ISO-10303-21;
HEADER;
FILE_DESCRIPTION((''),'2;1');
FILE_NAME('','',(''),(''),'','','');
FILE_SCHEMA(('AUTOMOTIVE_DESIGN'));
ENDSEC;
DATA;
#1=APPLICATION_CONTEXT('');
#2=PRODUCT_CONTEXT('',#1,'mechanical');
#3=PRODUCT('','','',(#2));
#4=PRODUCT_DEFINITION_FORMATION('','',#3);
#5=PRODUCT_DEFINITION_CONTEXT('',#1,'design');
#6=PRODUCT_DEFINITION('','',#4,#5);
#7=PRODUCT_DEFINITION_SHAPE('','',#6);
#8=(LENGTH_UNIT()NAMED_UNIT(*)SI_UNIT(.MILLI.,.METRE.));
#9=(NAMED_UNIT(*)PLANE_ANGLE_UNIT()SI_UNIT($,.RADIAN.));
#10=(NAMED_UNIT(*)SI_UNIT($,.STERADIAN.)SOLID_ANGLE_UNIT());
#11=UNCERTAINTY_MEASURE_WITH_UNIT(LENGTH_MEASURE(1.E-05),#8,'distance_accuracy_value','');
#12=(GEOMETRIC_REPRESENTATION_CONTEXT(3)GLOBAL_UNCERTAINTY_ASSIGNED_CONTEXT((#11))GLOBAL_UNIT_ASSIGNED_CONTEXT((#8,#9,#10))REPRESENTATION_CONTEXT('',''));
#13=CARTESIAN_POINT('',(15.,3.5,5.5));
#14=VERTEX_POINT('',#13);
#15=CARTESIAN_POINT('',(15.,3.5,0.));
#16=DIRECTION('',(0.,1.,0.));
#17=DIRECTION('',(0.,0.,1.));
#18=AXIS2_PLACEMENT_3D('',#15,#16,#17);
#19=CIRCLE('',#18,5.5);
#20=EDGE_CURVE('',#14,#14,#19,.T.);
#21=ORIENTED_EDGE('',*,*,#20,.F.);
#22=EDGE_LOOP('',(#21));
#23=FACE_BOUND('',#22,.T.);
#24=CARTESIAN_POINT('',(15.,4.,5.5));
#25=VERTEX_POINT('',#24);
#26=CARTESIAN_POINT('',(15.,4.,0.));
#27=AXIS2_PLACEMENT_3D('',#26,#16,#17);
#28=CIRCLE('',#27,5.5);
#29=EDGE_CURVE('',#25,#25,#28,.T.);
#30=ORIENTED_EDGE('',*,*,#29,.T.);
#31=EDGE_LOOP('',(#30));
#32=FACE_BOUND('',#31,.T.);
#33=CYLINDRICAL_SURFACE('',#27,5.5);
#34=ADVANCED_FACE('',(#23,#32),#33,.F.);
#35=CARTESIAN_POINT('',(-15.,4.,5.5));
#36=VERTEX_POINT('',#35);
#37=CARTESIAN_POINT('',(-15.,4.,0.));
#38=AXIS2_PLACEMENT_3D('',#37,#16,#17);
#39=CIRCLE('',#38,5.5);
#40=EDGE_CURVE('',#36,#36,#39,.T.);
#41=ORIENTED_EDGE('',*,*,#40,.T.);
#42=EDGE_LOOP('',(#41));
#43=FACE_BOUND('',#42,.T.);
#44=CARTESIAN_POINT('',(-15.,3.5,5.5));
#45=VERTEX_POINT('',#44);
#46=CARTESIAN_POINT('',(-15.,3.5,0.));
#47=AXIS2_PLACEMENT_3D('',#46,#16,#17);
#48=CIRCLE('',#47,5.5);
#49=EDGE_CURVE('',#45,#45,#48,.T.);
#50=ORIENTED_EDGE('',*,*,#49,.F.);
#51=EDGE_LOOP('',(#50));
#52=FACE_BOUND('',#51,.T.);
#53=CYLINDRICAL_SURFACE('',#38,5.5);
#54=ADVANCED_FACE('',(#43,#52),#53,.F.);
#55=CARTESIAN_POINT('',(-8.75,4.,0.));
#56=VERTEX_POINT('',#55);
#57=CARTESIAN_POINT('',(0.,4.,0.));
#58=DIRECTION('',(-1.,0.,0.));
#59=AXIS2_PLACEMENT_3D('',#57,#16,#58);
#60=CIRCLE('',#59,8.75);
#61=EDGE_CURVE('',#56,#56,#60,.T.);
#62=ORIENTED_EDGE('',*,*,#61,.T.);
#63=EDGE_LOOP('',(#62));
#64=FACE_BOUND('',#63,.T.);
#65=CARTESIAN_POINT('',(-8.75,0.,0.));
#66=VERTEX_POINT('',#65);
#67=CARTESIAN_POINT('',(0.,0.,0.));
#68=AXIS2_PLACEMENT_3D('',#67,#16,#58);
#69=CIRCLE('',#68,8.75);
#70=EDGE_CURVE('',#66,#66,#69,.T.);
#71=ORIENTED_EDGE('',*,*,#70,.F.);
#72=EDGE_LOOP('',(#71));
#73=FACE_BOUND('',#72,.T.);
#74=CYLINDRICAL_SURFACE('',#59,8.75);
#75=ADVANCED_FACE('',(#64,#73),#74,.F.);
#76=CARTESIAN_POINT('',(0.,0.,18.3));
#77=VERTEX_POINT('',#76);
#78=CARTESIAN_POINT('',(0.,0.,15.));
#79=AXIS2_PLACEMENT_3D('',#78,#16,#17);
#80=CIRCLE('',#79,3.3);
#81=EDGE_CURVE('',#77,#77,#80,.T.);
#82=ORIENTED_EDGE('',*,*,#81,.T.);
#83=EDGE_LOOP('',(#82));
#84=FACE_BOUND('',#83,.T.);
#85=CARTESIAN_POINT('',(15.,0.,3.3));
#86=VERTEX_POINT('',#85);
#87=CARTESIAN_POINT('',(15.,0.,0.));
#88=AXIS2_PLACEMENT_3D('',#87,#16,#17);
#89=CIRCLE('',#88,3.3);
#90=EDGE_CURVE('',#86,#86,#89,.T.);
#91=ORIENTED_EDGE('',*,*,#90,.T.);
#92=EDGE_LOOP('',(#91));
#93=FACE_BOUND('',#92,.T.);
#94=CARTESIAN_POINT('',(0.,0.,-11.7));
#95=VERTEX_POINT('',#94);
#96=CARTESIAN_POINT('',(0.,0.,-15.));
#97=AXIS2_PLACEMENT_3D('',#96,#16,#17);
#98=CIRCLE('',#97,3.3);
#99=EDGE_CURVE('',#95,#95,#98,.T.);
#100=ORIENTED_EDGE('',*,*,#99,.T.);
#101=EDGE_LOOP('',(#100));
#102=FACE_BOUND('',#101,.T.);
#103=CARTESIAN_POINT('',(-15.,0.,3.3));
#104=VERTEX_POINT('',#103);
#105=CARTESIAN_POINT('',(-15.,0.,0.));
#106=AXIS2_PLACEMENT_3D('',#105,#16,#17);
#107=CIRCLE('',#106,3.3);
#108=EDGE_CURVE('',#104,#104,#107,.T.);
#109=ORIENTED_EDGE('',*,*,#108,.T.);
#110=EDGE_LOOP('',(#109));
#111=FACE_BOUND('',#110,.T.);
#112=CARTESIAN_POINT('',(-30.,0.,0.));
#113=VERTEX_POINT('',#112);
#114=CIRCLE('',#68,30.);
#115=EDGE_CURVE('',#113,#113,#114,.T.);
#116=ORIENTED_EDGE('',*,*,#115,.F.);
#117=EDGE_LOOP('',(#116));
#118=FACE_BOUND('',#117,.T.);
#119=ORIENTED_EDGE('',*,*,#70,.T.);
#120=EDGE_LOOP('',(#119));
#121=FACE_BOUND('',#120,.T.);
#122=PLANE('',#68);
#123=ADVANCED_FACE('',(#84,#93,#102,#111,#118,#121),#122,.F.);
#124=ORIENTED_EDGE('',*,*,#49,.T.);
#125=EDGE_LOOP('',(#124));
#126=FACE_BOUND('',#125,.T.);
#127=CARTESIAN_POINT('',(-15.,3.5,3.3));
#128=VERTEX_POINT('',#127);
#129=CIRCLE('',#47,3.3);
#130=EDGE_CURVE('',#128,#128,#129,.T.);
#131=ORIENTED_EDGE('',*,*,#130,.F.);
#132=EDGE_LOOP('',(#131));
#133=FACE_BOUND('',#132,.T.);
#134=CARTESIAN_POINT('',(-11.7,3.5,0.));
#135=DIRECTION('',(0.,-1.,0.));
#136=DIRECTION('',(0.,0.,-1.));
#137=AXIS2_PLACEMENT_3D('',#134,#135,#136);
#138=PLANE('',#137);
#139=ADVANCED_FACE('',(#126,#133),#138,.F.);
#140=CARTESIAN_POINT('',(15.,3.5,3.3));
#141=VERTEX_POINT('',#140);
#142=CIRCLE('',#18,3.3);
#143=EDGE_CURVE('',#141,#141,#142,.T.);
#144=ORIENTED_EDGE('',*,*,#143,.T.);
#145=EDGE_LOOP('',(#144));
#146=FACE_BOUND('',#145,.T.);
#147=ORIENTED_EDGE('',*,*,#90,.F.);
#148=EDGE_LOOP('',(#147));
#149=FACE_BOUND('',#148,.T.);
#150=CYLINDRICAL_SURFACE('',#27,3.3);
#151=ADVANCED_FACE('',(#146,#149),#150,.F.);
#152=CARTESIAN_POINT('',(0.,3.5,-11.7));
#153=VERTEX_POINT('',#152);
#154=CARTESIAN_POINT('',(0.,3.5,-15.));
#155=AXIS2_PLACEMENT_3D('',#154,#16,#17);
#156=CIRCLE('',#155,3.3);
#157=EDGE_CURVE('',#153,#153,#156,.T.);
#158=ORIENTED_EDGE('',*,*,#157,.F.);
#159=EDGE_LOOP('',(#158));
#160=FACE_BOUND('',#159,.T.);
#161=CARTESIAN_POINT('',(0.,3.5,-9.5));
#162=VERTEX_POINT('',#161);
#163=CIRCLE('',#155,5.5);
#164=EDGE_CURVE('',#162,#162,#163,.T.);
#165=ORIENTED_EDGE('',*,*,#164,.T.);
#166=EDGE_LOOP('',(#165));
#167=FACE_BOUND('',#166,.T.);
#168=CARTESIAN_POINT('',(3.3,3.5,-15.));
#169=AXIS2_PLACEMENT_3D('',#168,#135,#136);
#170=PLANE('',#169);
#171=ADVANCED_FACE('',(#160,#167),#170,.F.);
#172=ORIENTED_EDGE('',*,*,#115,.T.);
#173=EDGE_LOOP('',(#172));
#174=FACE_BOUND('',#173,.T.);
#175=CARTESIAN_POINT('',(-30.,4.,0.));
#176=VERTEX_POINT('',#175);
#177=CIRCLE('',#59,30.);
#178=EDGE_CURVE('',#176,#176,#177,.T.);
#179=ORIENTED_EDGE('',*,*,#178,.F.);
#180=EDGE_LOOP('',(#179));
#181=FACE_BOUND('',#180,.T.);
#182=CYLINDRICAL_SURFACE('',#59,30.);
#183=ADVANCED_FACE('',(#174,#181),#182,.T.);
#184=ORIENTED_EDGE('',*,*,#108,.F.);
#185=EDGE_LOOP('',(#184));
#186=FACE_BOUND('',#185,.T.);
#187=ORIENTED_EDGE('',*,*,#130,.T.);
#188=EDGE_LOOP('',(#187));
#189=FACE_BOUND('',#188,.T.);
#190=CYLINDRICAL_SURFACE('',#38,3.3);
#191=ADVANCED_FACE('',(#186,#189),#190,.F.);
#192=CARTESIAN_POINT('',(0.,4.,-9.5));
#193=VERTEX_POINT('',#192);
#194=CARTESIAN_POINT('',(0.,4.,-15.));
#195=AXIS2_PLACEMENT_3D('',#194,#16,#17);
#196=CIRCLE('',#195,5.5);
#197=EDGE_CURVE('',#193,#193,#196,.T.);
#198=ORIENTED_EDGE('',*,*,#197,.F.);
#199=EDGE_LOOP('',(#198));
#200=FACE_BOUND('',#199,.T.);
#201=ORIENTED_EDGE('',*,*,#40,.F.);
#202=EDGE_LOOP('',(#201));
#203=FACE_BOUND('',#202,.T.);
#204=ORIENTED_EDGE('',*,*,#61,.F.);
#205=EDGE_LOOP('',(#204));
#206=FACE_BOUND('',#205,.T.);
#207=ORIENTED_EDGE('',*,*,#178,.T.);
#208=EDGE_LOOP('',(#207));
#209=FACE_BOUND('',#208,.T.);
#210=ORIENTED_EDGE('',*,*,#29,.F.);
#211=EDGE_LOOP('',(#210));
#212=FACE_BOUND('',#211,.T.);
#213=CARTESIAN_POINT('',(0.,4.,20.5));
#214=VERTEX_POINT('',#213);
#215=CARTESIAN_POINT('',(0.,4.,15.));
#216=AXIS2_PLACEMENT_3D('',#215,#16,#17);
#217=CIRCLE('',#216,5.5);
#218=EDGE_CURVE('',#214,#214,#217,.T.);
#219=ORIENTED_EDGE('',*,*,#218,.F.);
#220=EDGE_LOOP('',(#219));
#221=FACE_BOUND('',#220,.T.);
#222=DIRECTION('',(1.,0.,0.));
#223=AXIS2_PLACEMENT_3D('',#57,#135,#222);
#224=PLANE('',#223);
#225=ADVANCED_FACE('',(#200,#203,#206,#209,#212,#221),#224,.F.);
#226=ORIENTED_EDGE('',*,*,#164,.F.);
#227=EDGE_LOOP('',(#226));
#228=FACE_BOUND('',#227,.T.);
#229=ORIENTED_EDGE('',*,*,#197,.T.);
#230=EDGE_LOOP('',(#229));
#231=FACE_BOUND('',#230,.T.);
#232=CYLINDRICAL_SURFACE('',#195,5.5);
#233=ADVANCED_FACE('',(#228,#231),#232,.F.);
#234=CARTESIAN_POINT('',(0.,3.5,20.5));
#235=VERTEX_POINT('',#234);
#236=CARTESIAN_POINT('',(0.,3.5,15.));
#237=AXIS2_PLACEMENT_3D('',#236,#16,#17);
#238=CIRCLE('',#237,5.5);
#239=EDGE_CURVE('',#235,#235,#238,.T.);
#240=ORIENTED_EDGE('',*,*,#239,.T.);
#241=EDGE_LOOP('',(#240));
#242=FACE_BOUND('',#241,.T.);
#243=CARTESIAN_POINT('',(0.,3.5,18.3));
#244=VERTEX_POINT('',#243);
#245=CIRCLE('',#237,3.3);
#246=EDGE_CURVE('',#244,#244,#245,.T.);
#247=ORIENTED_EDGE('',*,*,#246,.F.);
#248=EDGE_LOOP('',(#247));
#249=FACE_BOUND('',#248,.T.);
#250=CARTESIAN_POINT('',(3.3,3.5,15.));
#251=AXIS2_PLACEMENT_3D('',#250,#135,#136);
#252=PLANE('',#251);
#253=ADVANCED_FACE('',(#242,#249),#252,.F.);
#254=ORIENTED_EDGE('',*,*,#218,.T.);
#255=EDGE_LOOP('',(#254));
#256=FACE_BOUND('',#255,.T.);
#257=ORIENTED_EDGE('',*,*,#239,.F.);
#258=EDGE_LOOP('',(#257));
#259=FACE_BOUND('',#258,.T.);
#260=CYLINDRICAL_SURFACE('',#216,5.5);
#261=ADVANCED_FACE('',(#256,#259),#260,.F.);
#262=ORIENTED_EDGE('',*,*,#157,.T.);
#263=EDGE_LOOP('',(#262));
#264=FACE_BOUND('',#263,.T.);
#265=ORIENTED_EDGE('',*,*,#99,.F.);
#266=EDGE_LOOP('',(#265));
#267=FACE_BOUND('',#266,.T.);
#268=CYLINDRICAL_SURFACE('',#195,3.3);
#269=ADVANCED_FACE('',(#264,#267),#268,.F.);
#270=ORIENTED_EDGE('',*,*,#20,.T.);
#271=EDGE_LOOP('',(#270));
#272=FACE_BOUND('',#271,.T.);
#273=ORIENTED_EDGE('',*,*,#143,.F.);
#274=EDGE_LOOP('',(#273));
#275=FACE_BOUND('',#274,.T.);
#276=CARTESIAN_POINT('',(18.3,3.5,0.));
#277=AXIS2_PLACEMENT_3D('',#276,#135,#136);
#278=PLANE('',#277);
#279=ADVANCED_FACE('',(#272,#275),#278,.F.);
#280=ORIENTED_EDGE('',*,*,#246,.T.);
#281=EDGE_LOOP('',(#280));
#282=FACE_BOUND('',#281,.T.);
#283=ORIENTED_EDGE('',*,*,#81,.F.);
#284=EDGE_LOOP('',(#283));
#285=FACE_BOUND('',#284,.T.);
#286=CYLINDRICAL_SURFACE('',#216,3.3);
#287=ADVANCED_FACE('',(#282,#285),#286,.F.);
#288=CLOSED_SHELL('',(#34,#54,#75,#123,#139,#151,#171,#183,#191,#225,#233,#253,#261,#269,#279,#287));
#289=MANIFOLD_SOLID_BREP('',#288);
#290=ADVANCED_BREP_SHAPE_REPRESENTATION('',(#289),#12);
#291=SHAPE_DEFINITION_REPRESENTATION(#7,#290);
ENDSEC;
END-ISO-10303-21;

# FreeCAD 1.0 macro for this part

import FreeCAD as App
import Part
import Sketcher


def add_polygon(sketch, points):
    """Adds a closed chain of lines whose ends are joined by coincident constraints."""
    first, n = sketch.GeometryCount, len(points)
    for a, b in zip(points, points[1:] + points[:1]):
        sketch.addGeometry(Part.LineSegment(App.Vector(*a, 0), App.Vector(*b, 0)), False)
    for i in range(n):
        sketch.addConstraint(Sketcher.Constraint("Coincident", first + i, 2, first + (i + 1) % n, 1))

doc = App.newDocument("Part")
params = doc.addObject("Spreadsheet::Sheet", "Params")
for row, (alias, value) in enumerate([
    ("sketch1_height", "4 mm"),
    ("sketch1_width", "21.25 mm"),
    ("revolution_angle", "360 deg"),
    ("sketch2_diameter", "6.6 mm"),
    ("hole_diameter", "6.6 mm"),
    ("hole_cbore_diameter", "11 mm"),
    ("hole_cbore_depth", "0.5 mm"),
], start=1):
    params.set(f"A{row}", alias)
    params.set(f"B{row}", "=" + value)
    params.setAlias(f"B{row}", alias)

body = doc.addObject("PartDesign::Body", "Body")

# Sketch on XY plane
sketch1 = body.newObject("Sketcher::SketchObject", "Sketch")
sketch1.AttachmentSupport = (doc.getObject("XY_Plane"), [""])
sketch1.MapMode = "FlatFace"
add_polygon(sketch1, [(8.75, 4), (8.75, 0), (30, 0), (30, 4)])  # lines 0-3
sketch1.addConstraint(Sketcher.Constraint("Vertical", 0))
sketch1.addConstraint(Sketcher.Constraint("Horizontal", 1))
sketch1.addConstraint(Sketcher.Constraint("Vertical", 2))
sketch1.addConstraint(Sketcher.Constraint("Horizontal", 3))
sketch1.addConstraint(Sketcher.Constraint("PointOnObject", 0, 2, -1))
sketch1.addConstraint(Sketcher.Constraint("DistanceY", 0, 2, 0, 1, 4.0))
sketch1.addConstraint(Sketcher.Constraint("DistanceX", -1, 1, 1, 2, 30.0))
sketch1.addConstraint(Sketcher.Constraint("DistanceX", 1, 1, 1, 2, 21.25))
sketch1.setExpression("Constraints[9]", "Params.sketch1_height")
sketch1.setExpression("Constraints[11]", "Params.sketch1_width")
revolution = body.newObject("PartDesign::Revolution", "Revolution")
revolution.Profile = sketch1
revolution.ReferenceAxis = (sketch1, ["V_Axis"])
revolution.setExpression("Angle", "Params.revolution_angle")

# Sketch on XZ plane
sketch2 = body.newObject("Sketcher::SketchObject", "Sketch001")
sketch2.AttachmentSupport = (doc.getObject("XZ_Plane"), [""])
sketch2.MapMode = "FlatFace"
sketch2.AttachmentOffset = App.Placement(App.Vector(0, 0, -4), App.Rotation())
sketch2.addGeometry(Part.Circle(App.Vector(15, 0, 0), App.Vector(0, 0, 1), 3.3), False)
sketch2.addGeometry(Part.Circle(App.Vector(0, 15, 0), App.Vector(0, 0, 1), 3.3), False)
sketch2.addGeometry(Part.Circle(App.Vector(-15, 0, 0), App.Vector(0, 0, 1), 3.3), False)
sketch2.addGeometry(Part.Circle(App.Vector(0, -15, 0), App.Vector(0, 0, 1), 3.3), False)
sketch2.addConstraint(Sketcher.Constraint("Equal", 0, 1))
sketch2.addConstraint(Sketcher.Constraint("Equal", 1, 2))
sketch2.addConstraint(Sketcher.Constraint("Equal", 2, 3))
sketch2.addConstraint(Sketcher.Constraint("Symmetric", 0, 3, 2, 3, -1, 1))
sketch2.addConstraint(Sketcher.Constraint("Symmetric", 1, 3, 3, 3, -1, 1))
sketch2.addConstraint(Sketcher.Constraint("PointOnObject", 0, 3, -1))
sketch2.addConstraint(Sketcher.Constraint("PointOnObject", 1, 3, -2))
sketch2.addConstraint(Sketcher.Constraint("Diameter", 0, 6.6))
sketch2.addConstraint(Sketcher.Constraint("DistanceX", -1, 1, 0, 3, 15.0))
sketch2.addConstraint(Sketcher.Constraint("DistanceY", -1, 1, 1, 3, 15.0))
sketch2.setExpression("Constraints[7]", "Params.sketch2_diameter")
doc.recompute()
hole = body.newObject("PartDesign::Hole", "Hole")
hole.Profile = sketch2
hole.ThreadType = "None"
hole.setExpression("Diameter", "Params.hole_diameter")
hole.DepthType = "ThroughAll"
hole.HoleCutType = "Counterbore"
hole.setExpression("HoleCutDiameter", "Params.hole_cbore_diameter")
hole.setExpression("HoleCutDepth", "Params.hole_cbore_depth")
hole.Reversed = True

doc.recompute()
